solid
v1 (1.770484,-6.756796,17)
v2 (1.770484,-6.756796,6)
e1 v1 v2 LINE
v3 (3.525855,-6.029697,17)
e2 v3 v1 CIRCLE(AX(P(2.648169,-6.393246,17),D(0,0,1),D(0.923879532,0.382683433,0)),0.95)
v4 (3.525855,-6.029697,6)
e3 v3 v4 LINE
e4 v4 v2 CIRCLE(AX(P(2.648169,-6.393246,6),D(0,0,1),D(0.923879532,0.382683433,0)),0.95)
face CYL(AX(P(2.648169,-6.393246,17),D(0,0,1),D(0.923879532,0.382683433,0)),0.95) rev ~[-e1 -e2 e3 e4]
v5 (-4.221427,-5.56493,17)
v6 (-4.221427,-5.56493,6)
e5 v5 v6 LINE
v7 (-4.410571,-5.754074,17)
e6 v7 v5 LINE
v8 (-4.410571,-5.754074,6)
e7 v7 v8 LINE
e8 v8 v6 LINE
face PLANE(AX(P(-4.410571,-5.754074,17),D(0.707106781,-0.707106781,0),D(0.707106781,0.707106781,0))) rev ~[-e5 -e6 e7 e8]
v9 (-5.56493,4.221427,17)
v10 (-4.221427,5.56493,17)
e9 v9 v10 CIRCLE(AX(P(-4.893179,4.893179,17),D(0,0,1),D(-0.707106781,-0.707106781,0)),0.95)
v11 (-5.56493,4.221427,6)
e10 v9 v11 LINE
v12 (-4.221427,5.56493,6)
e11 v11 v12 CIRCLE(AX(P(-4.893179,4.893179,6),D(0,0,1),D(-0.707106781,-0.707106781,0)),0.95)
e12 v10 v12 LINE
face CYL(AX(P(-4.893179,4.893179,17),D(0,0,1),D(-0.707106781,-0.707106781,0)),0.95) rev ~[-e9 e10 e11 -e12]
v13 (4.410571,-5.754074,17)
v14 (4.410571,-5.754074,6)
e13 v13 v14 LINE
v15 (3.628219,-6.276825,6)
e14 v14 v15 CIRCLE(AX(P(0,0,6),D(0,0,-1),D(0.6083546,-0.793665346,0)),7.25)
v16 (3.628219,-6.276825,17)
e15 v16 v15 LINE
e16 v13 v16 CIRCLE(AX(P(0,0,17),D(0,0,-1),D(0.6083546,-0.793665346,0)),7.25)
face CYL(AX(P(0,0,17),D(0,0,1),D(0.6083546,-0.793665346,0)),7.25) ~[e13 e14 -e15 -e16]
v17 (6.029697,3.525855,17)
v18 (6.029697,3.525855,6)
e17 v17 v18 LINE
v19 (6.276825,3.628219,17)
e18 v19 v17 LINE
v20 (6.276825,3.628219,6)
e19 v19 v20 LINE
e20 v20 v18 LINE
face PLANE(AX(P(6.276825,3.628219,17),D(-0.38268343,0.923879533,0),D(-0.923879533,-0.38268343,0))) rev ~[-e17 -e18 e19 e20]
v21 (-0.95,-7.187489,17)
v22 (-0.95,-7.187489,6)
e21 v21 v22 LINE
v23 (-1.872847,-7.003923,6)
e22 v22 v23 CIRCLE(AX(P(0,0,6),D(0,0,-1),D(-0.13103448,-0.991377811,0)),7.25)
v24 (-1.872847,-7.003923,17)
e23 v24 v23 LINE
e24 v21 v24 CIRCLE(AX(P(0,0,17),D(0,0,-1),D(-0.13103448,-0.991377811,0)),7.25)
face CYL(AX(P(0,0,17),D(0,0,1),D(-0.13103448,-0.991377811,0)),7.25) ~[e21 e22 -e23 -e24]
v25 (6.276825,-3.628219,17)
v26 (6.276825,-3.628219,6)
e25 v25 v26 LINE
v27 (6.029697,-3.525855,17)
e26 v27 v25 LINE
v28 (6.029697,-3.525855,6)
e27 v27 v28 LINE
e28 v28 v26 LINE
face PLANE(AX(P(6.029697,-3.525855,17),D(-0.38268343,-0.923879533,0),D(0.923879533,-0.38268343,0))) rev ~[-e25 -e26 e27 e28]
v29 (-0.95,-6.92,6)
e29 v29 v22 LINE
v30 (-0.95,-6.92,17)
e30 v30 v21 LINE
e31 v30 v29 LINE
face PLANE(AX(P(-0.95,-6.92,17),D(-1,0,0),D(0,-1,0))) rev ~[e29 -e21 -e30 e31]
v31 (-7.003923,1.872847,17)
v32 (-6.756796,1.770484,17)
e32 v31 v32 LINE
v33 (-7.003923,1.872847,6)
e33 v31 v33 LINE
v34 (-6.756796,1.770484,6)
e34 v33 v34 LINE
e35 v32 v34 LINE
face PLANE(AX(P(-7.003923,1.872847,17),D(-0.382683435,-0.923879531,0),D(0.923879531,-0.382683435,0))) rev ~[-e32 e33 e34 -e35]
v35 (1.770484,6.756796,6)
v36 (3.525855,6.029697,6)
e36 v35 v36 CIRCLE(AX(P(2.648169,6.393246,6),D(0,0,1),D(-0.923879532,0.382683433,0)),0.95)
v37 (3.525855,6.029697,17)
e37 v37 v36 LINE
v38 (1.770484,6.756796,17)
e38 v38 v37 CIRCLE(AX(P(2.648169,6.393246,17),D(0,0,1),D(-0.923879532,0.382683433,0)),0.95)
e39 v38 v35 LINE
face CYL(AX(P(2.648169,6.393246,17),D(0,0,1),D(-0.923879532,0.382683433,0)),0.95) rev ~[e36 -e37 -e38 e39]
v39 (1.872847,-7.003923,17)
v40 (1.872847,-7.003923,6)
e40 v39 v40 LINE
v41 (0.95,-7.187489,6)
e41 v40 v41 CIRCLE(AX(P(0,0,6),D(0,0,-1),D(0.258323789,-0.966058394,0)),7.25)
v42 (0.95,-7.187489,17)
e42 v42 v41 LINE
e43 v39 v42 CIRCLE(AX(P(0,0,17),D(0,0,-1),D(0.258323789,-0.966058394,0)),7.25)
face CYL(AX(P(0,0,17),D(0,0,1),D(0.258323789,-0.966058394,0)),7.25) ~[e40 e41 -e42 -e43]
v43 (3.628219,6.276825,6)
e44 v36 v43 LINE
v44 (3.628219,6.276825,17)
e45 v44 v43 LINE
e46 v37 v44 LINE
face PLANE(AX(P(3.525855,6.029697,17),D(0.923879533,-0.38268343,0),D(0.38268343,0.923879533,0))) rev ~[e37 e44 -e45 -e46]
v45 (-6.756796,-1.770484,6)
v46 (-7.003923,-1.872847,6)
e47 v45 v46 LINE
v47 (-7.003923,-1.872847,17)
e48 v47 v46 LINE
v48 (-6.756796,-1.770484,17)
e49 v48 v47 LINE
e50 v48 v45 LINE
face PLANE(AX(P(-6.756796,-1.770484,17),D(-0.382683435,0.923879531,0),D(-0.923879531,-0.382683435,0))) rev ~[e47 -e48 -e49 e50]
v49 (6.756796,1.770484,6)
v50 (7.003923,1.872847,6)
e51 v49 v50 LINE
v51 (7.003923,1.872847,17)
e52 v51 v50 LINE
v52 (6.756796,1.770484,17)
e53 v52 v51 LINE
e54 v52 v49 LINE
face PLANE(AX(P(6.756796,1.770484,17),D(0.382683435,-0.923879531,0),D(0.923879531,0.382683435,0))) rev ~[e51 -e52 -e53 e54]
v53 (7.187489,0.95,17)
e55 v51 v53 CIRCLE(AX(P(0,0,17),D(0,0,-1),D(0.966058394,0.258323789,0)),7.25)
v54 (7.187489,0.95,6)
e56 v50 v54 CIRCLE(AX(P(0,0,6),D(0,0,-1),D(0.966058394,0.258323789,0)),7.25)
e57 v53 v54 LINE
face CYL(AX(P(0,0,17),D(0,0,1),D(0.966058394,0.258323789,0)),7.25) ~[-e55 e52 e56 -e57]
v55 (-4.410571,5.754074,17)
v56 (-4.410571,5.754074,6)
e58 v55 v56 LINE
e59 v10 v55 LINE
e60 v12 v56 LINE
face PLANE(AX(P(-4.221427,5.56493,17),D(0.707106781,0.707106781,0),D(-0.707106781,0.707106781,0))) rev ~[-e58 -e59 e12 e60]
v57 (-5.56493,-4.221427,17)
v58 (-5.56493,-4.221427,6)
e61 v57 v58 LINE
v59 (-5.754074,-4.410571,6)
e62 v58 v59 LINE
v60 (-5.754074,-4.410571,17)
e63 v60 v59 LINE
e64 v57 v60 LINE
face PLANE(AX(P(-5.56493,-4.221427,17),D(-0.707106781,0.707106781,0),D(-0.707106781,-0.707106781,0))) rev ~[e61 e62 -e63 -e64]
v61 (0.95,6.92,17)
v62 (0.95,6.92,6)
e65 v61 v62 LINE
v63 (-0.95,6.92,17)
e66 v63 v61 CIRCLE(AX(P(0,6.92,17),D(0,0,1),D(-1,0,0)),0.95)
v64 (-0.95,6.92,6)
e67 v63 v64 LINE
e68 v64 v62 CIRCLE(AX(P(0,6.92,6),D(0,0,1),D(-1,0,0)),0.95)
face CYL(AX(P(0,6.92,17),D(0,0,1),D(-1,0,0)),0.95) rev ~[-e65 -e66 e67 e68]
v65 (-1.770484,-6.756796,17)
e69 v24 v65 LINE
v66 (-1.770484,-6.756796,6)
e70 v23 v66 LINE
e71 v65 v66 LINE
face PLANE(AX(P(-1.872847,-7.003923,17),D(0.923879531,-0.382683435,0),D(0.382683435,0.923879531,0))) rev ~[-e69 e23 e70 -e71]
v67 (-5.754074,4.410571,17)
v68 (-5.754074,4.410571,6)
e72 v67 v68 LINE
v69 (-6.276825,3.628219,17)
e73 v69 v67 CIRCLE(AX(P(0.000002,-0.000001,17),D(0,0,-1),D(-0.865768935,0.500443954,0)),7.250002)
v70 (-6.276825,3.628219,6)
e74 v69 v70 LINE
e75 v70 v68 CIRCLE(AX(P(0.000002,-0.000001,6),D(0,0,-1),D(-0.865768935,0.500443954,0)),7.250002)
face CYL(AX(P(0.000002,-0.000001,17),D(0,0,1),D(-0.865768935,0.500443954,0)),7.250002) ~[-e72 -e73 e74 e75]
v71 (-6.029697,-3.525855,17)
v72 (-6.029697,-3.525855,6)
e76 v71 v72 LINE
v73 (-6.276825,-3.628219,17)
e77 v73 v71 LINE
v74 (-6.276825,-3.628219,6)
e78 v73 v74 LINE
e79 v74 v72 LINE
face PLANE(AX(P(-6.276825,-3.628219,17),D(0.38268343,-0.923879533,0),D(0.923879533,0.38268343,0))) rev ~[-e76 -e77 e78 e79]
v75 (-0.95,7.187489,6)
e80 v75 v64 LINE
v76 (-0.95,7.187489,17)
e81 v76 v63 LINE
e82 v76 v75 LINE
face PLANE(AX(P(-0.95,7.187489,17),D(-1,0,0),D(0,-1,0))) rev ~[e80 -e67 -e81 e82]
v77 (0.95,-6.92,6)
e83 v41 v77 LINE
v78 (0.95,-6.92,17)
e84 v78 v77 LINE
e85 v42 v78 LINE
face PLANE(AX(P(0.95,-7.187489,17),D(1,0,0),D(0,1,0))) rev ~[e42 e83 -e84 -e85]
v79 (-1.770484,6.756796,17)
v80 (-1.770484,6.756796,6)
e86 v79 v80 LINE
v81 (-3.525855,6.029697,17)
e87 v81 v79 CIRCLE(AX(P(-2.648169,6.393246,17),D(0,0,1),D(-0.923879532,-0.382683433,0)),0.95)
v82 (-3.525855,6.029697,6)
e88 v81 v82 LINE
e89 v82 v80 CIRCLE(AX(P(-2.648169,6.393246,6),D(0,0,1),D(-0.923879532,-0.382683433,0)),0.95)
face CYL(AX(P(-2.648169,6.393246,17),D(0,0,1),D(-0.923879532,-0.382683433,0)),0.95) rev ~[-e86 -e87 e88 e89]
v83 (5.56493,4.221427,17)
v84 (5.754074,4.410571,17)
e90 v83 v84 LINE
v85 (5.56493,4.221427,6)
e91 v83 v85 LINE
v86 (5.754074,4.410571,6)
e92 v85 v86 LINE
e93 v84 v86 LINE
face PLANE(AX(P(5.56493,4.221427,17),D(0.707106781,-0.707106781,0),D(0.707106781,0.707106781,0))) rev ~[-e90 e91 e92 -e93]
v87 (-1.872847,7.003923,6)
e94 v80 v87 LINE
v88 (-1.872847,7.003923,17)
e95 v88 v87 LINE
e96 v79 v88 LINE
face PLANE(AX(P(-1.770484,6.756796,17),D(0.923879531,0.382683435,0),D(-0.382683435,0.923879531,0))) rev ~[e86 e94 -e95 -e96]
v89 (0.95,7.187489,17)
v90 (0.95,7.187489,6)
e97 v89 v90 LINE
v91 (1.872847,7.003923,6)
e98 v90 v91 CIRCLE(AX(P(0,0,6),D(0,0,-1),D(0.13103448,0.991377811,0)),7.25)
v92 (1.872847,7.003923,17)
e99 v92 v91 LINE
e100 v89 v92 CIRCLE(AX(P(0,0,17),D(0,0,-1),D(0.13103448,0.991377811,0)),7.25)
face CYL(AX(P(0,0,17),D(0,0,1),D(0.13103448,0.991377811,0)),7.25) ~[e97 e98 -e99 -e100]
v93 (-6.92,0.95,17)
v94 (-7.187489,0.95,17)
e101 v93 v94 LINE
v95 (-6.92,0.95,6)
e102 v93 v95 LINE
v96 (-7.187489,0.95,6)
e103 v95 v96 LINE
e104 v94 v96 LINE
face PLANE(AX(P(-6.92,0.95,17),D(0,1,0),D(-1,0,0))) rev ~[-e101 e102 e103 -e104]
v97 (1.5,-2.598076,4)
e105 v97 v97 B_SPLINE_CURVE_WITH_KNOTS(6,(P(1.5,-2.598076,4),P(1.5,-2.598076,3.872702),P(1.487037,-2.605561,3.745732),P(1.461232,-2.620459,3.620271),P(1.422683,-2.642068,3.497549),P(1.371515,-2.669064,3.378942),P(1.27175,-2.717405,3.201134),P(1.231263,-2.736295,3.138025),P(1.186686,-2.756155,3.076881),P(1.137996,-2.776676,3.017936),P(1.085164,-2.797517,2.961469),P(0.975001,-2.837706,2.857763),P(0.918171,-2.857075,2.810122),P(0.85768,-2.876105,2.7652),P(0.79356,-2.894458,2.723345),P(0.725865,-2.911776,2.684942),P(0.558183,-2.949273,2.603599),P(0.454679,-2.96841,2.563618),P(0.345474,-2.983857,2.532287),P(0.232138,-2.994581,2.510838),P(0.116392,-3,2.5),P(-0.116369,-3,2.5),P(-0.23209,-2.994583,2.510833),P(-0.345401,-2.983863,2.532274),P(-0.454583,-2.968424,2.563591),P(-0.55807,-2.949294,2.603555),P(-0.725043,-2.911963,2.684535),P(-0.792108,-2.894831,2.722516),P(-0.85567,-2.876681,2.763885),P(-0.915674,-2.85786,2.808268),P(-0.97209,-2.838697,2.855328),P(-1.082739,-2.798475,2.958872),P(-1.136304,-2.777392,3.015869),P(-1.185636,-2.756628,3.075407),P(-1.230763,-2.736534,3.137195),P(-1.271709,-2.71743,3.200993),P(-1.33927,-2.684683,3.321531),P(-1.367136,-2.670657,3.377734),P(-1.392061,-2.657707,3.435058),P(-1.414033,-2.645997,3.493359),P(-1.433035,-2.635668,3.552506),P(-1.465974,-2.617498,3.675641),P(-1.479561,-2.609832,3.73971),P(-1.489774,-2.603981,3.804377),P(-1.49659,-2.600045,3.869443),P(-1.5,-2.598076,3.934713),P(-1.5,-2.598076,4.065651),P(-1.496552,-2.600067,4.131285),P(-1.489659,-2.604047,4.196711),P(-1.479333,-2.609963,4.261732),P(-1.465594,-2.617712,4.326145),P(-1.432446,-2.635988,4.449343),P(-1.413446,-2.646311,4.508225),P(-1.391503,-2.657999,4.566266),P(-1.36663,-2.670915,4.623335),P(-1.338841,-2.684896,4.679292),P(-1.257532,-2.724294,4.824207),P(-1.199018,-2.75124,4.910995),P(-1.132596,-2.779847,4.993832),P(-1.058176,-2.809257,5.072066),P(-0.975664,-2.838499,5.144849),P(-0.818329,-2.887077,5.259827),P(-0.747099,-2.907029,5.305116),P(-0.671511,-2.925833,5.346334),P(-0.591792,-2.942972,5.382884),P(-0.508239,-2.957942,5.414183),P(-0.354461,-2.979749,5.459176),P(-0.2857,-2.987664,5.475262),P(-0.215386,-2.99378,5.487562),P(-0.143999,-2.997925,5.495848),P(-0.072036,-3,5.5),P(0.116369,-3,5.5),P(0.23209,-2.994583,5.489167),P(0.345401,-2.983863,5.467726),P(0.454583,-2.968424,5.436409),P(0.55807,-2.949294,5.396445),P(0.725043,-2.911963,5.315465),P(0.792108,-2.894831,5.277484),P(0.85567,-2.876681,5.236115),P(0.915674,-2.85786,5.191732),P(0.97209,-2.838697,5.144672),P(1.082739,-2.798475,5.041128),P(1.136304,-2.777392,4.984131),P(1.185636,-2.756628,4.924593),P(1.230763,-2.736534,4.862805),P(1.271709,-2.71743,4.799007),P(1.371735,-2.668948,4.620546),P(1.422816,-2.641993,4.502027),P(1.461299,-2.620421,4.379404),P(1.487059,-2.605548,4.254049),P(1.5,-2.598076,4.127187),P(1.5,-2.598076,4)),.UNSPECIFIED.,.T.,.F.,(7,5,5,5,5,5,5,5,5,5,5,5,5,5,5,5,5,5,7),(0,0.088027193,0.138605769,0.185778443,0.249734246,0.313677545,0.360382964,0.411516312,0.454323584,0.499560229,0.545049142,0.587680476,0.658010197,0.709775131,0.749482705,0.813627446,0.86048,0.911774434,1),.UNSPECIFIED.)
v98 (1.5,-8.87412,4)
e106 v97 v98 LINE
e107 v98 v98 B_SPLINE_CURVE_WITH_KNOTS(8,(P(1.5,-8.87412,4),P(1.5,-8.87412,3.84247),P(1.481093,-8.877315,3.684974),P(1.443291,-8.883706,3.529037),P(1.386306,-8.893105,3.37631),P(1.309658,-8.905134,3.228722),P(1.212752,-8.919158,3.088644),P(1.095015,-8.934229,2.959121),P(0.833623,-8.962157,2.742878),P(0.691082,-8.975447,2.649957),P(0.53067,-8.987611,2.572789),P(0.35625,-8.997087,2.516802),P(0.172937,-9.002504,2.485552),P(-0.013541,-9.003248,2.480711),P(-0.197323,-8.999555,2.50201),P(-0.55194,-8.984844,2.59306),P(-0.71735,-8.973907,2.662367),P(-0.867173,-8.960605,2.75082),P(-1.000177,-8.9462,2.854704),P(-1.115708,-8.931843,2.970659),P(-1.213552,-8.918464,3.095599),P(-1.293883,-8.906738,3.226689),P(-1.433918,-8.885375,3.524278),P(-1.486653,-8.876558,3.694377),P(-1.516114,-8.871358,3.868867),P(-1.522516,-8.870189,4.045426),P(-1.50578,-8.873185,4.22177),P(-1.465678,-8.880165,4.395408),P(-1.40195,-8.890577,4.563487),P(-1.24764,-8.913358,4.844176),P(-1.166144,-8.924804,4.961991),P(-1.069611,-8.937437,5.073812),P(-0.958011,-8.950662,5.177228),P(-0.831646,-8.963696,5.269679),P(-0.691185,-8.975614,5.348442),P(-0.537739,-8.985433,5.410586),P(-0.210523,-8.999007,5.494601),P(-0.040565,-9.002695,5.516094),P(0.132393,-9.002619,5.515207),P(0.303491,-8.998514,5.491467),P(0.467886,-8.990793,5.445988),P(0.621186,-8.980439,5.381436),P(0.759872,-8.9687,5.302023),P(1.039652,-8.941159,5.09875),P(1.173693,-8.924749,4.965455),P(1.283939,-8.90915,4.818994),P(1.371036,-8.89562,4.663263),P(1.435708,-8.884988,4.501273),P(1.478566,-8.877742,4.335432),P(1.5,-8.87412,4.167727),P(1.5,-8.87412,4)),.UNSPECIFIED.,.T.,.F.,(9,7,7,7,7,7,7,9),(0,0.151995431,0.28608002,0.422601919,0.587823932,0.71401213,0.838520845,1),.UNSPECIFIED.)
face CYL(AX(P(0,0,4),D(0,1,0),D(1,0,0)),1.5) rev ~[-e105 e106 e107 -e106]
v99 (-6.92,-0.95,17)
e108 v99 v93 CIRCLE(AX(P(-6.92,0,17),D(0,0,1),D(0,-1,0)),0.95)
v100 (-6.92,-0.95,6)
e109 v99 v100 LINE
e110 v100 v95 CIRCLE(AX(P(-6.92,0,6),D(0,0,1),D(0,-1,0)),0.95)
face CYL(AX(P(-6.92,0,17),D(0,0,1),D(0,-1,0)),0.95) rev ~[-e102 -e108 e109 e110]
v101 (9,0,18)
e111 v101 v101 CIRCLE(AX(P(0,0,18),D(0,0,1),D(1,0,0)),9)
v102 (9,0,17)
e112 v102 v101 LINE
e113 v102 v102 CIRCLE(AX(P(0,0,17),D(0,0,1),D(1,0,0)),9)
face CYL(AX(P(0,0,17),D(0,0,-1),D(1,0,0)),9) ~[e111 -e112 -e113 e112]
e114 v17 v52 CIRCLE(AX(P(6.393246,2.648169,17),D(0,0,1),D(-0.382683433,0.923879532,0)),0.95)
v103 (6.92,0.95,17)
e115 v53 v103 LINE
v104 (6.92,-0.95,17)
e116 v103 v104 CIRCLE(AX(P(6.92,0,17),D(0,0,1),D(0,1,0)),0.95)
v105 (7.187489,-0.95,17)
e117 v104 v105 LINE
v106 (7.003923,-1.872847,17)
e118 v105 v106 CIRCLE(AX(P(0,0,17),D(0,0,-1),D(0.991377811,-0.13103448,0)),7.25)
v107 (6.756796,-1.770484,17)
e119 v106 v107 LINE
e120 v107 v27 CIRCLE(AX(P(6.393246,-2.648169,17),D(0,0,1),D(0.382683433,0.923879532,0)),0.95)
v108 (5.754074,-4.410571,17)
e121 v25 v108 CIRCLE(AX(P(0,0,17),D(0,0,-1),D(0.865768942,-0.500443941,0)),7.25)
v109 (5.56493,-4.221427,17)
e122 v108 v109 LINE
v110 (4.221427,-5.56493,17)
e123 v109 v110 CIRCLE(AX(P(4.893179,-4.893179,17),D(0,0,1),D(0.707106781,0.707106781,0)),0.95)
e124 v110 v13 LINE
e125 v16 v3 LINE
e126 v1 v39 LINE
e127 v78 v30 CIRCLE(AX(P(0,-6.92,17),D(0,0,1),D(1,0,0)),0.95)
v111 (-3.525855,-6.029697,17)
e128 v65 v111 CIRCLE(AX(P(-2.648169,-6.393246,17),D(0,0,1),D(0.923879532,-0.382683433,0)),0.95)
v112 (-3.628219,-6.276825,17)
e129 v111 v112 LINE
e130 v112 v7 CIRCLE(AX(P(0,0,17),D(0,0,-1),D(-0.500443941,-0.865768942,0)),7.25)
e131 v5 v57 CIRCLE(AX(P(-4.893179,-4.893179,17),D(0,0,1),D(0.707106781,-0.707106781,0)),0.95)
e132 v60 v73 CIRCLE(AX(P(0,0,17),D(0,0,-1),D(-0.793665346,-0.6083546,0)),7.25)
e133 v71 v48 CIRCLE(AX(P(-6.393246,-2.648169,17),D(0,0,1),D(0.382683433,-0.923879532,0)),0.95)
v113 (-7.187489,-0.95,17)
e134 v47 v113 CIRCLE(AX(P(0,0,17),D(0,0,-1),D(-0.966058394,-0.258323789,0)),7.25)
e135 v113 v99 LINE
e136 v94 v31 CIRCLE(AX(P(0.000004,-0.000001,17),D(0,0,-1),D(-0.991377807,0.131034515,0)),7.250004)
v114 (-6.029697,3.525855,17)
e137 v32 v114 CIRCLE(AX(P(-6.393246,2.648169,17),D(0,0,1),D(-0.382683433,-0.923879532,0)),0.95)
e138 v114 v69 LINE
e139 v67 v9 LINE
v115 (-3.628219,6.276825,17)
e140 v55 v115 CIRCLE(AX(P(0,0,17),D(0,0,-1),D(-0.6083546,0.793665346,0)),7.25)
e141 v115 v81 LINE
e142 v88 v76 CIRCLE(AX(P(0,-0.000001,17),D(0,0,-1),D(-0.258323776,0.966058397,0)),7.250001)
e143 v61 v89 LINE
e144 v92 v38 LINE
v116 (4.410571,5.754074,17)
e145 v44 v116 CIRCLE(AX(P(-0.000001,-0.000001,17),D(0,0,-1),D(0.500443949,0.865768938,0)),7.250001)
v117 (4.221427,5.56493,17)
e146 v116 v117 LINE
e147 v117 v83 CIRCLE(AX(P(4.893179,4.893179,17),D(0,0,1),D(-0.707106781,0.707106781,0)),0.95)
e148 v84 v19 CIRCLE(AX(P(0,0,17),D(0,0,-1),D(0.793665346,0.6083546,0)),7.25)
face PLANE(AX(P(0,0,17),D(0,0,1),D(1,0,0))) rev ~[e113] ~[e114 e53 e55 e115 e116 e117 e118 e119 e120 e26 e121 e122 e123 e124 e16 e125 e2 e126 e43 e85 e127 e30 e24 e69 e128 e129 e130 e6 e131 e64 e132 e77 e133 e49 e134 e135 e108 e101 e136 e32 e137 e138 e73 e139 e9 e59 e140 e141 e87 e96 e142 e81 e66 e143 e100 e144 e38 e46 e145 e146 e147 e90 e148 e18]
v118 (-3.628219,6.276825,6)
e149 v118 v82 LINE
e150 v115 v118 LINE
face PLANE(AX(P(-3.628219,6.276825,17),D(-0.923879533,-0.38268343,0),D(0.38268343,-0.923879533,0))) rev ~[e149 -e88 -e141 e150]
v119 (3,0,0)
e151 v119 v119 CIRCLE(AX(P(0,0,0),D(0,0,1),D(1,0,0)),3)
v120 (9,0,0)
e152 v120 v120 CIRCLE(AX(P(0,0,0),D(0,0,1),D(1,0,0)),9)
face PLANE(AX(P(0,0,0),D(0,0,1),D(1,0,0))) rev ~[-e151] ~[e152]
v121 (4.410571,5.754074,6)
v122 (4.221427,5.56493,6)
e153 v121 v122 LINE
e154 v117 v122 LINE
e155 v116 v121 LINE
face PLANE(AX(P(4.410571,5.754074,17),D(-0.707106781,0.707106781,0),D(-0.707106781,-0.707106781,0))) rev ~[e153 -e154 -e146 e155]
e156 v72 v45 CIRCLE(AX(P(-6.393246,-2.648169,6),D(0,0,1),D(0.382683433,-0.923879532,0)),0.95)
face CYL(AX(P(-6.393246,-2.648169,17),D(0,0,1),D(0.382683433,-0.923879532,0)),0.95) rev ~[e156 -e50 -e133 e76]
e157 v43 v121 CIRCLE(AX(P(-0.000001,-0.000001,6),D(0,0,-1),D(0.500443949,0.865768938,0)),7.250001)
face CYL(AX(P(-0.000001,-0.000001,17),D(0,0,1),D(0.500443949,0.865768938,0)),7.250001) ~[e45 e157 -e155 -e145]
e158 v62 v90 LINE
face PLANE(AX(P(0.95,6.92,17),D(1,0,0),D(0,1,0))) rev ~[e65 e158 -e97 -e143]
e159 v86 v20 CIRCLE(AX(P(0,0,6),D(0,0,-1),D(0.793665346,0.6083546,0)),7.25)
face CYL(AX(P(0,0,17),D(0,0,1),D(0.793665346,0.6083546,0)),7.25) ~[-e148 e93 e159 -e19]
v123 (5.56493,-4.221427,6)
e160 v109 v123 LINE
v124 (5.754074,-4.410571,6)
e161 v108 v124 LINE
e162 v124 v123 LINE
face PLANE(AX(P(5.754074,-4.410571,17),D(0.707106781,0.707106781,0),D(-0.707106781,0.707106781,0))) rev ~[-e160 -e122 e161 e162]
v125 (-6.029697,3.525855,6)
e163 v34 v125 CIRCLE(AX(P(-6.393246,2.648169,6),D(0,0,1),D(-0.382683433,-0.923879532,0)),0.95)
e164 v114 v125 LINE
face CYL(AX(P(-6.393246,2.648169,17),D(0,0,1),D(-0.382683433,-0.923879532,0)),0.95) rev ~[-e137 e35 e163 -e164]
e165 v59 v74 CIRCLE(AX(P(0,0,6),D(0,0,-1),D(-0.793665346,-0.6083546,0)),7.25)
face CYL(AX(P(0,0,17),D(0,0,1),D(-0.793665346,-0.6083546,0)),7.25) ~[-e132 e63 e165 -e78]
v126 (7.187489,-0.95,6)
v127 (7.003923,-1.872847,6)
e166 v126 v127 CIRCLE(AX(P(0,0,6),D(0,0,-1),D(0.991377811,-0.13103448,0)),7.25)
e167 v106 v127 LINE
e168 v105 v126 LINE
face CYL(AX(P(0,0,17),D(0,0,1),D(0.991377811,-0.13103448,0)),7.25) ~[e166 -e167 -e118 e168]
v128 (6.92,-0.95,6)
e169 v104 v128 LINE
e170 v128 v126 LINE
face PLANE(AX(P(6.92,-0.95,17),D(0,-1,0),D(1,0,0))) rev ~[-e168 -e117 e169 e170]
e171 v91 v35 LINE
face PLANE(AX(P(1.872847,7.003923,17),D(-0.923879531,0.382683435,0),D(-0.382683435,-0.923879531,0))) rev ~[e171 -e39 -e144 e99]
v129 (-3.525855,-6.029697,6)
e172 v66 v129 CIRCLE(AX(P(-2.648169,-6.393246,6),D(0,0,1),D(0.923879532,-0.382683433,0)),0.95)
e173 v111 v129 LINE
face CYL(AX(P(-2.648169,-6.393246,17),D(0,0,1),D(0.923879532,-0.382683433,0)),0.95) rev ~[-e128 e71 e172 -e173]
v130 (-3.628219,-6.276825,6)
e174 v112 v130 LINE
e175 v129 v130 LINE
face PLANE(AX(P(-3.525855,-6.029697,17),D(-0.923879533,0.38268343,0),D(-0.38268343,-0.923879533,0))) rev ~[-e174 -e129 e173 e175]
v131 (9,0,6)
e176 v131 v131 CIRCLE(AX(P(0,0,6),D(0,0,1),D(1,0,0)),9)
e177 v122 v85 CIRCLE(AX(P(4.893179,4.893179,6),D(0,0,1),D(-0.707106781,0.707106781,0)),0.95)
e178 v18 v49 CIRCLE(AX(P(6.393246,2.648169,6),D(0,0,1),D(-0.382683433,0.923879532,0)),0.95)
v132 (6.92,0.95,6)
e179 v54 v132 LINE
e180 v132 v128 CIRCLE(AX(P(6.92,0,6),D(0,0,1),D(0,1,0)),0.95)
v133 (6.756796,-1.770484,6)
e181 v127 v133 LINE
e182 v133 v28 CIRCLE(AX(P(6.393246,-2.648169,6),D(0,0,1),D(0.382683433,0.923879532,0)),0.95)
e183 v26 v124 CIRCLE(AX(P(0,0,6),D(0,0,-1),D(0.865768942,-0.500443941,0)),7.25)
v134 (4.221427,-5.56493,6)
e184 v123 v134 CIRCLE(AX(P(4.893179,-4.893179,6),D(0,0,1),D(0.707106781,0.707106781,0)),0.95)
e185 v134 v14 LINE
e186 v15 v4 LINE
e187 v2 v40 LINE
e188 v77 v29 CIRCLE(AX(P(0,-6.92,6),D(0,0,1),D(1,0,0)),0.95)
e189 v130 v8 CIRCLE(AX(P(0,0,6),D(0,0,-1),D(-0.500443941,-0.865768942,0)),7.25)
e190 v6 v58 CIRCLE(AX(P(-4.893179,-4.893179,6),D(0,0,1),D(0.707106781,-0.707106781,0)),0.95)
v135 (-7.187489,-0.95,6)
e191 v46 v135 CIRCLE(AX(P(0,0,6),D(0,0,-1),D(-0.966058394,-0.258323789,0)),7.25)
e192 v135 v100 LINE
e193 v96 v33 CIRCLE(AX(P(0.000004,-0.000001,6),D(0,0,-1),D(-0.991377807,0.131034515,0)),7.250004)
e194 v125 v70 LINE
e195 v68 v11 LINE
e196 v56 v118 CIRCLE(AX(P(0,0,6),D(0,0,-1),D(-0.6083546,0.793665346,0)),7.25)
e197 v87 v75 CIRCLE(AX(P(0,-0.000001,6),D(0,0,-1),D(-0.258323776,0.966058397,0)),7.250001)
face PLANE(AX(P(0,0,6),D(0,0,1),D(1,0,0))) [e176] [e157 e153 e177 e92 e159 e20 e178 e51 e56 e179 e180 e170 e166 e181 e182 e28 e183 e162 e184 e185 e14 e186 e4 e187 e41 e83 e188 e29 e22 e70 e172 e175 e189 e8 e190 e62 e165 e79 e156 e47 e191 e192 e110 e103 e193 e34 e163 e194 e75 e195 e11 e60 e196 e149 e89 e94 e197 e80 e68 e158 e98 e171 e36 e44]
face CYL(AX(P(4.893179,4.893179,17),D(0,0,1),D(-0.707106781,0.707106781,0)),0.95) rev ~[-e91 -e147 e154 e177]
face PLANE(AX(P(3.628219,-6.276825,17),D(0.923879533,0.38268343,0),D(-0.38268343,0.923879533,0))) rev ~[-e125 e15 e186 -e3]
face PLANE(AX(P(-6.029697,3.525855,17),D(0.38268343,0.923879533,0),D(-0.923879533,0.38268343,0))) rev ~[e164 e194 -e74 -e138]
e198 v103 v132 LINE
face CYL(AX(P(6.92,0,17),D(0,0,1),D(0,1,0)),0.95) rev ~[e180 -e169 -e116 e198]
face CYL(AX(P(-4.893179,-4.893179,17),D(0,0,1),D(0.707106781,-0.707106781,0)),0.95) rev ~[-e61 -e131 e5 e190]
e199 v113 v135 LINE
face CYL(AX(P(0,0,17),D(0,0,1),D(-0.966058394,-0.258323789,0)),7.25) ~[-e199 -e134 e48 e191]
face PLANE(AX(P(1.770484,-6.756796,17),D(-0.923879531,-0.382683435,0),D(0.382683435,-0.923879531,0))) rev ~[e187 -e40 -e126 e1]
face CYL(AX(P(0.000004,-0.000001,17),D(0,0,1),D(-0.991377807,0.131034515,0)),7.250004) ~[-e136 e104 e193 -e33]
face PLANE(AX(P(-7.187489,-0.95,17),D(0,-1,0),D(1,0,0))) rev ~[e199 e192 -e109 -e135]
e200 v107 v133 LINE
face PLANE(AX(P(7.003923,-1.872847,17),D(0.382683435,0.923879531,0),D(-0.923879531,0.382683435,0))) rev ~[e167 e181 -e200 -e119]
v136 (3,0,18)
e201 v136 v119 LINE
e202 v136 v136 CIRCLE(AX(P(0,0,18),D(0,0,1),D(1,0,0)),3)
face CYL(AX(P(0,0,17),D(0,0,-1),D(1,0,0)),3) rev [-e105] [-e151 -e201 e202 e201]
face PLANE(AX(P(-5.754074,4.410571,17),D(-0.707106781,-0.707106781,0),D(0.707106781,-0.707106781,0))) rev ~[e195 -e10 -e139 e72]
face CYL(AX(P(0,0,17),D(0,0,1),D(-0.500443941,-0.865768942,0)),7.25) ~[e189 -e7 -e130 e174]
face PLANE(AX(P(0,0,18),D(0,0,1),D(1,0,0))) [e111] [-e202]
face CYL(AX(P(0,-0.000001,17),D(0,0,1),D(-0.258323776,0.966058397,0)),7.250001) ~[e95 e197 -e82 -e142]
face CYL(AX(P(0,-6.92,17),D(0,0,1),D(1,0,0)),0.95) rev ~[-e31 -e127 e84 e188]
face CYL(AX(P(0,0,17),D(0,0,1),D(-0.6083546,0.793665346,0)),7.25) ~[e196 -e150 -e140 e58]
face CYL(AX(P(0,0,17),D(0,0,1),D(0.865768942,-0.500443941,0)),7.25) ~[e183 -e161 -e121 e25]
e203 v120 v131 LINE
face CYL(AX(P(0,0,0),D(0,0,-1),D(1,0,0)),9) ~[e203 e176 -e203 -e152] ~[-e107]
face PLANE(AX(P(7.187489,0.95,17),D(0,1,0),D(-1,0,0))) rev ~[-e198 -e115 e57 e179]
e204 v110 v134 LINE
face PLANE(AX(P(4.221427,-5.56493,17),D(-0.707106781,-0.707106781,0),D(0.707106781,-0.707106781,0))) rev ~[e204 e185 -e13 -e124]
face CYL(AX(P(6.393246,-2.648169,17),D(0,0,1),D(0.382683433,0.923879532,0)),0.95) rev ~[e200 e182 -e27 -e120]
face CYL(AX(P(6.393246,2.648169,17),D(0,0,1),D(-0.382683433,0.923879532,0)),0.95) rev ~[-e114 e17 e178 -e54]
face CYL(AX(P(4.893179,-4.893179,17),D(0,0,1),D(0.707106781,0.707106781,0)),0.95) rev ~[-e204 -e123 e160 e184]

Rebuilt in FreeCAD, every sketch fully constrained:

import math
import FreeCAD as App
import Part
import Sketcher

V = App.Vector
Q = App.Units.Quantity

doc = App.newDocument("Part")
body = doc.addObject("PartDesign::Body", "Body")

sketch1 = doc.addObject("Sketcher::SketchObject", "Sketch")
body.addObject(sketch1)
sketch1.AttachmentSupport = (doc.XY_Plane, [""])
sketch1.MapMode = "FlatFace"
sketch1.addGeometry(Part.Circle(V(0, 0, 0), V(0, 0, 1), 9), False)
sketch1.addGeometry(Part.Circle(V(0, 0, 0), V(0, 0, 1), 3), False)
sketch1.addConstraint(Sketcher.Constraint("Coincident", 0, 3, -1, 1))
sketch1.addConstraint(Sketcher.Constraint("Coincident", 1, 3, -1, 1))
sketch1.addConstraint(Sketcher.Constraint("Diameter", 0, 18.0))
sketch1.addConstraint(Sketcher.Constraint("Diameter", 1, 6.0))
pad1 = doc.addObject("PartDesign::Pad", "Pad")
body.addObject(pad1)
pad1.Profile = sketch1
pad1.Length = 6

sketch2 = doc.addObject("Sketcher::SketchObject", "Sketch001")
body.addObject(sketch2)
sketch2.AttachmentSupport = (doc.XY_Plane, [""])
sketch2.MapMode = "FlatFace"
sketch2.AttachmentOffset = App.Placement(V(0, 0, 6), App.Rotation())
sketch2.addGeometry(Part.Circle(V(0, 0, 0), V(0, 0, 1), 7.2), False)
sketch2.addGeometry(Part.Circle(V(0, 0, 0), V(0, 0, 1), 3), False)
sketch2.addConstraint(Sketcher.Constraint("Coincident", 0, 3, -1, 1))
sketch2.addConstraint(Sketcher.Constraint("Coincident", 1, 3, -1, 1))
sketch2.addConstraint(Sketcher.Constraint("Diameter", 1, 6.0))
sketch2.addConstraint(Sketcher.Constraint("Diameter", 0, 14.5))
pad2 = doc.addObject("PartDesign::Pad", "Pad001")
body.addObject(pad2)
pad2.Profile = sketch2
pad2.Length = 11

sketch3 = doc.addObject("Sketcher::SketchObject", "Sketch002")
body.addObject(sketch3)
sketch3.AttachmentSupport = (doc.XY_Plane, [""])
sketch3.MapMode = "FlatFace"
sketch3.AttachmentOffset = App.Placement(V(0, 0, 17), App.Rotation())
sketch3.addGeometry(Part.Circle(V(0, 0, 0), V(0, 0, 1), 9), False)
sketch3.addGeometry(Part.Circle(V(0, 0, 0), V(0, 0, 1), 3), False)
sketch3.addConstraint(Sketcher.Constraint("Coincident", 0, 3, -1, 1))
sketch3.addConstraint(Sketcher.Constraint("Coincident", 1, 3, -1, 1))
sketch3.addConstraint(Sketcher.Constraint("Diameter", 0, 18.0))
sketch3.addConstraint(Sketcher.Constraint("Diameter", 1, 6.0))
pad3 = doc.addObject("PartDesign::Pad", "Pad002")
body.addObject(pad3)
pad3.Profile = sketch3
pad3.Length = 1

sketch4 = doc.addObject("Sketcher::SketchObject", "Sketch003")
body.addObject(sketch4)
sketch4.AttachmentSupport = (doc.XZ_Plane, [""])
sketch4.MapMode = "FlatFace"
sketch4.addGeometry(Part.Circle(V(0, 4, 0), V(0, 0, 1), 1.5), False)
sketch4.addConstraint(Sketcher.Constraint("PointOnObject", 0, 3, -2))
sketch4.addConstraint(Sketcher.Constraint("Diameter", 0, 3.0))
sketch4.addConstraint(Sketcher.Constraint("DistanceY", -1, 1, 0, 3, 4.0))
pocket1 = doc.addObject("PartDesign::Pocket", "Pocket")
body.addObject(pocket1)
pocket1.Profile = sketch4
pocket1.Type = "ThroughAll"
pocket1.Reversed = True

sketch5 = doc.addObject("Sketcher::SketchObject", "Sketch004")
body.addObject(sketch5)
sketch5.AttachmentSupport = (doc.XY_Plane, [""])
sketch5.MapMode = "FlatFace"
sketch5.AttachmentOffset = App.Placement(V(0, 0, 17), App.Rotation())
sketch5.addGeometry(Part.Circle(V(0, 0, 0), V(0, 0, 1), 9), False)
sketch5.addGeometry(Part.ArcOfCircle(Part.Circle(V(0, 0, 0), V(0, 0, 1), 7.25), math.radians(97.53), math.radians(104.97)), False)
sketch5.addGeometry(Part.LineSegment(V(-0.95, 7.19, 0), V(-0.95, 6.92, 0)), False)
sketch5.addGeometry(Part.ArcOfCircle(Part.Circle(V(0, 6.92, 0), V(0, 0, 1), 0.95), math.radians(180), math.radians(360)), False)
sketch5.addGeometry(Part.LineSegment(V(0.95, 6.92, 0), V(0.95, 7.19, 0)), False)
sketch5.addGeometry(Part.ArcOfCircle(Part.Circle(V(0, 0, 0), V(0, 0, 1), 7.25), math.radians(75.03), math.radians(82.47)), False)
sketch5.addGeometry(Part.LineSegment(V(1.87, 7, 0), V(1.77, 6.76, 0)), False)
sketch5.addGeometry(Part.ArcOfCircle(Part.Circle(V(2.65, 6.39, 0), V(0, 0, 1), 0.95), math.radians(157), math.radians(337)), False)
sketch5.addGeometry(Part.LineSegment(V(3.53, 6.03, 0), V(3.63, 6.28, 0)), False)
sketch5.addGeometry(Part.ArcOfCircle(Part.Circle(V(0, 0, 0), V(0, 0, 1), 7.25), math.radians(52.53), math.radians(59.97)), False)
sketch5.addGeometry(Part.LineSegment(V(4.41, 5.75, 0), V(4.22, 5.56, 0)), False)
sketch5.addGeometry(Part.ArcOfCircle(Part.Circle(V(4.89, 4.89, 0), V(0, 0, 1), 0.95), math.radians(135), math.radians(315)), False)
sketch5.addGeometry(Part.LineSegment(V(5.56, 4.22, 0), V(5.75, 4.41, 0)), False)
sketch5.addGeometry(Part.ArcOfCircle(Part.Circle(V(0, 0, 0), V(0, 0, 1), 7.25), math.radians(30.03), math.radians(37.47)), False)
sketch5.addGeometry(Part.LineSegment(V(6.28, 3.63, 0), V(6.03, 3.53, 0)), False)
sketch5.addGeometry(Part.ArcOfCircle(Part.Circle(V(6.39, 2.65, 0), V(0, 0, 1), 0.95), math.radians(113), math.radians(293)), False)
sketch5.addGeometry(Part.LineSegment(V(6.76, 1.77, 0), V(7, 1.87, 0)), False)
sketch5.addGeometry(Part.ArcOfCircle(Part.Circle(V(0, 0, 0), V(0, 0, 1), 7.25), math.radians(7.53), math.radians(14.97)), False)
sketch5.addGeometry(Part.LineSegment(V(7.19, 0.95, 0), V(6.92, 0.95, 0)), False)
sketch5.addGeometry(Part.ArcOfCircle(Part.Circle(V(6.92, 0, 0), V(0, 0, 1), 0.95), math.radians(90), math.radians(270)), False)
sketch5.addGeometry(Part.LineSegment(V(6.92, -0.95, 0), V(7.19, -0.95, 0)), False)
sketch5.addGeometry(Part.ArcOfCircle(Part.Circle(V(0, 0, 0), V(0, 0, 1), 7.25), math.radians(-14.97), math.radians(-7.53)), False)
sketch5.addGeometry(Part.LineSegment(V(7, -1.87, 0), V(6.76, -1.77, 0)), False)
sketch5.addGeometry(Part.ArcOfCircle(Part.Circle(V(6.39, -2.65, 0), V(0, 0, 1), 0.95), math.radians(67), math.radians(247)), False)
sketch5.addGeometry(Part.LineSegment(V(6.03, -3.53, 0), V(6.28, -3.63, 0)), False)
sketch5.addGeometry(Part.ArcOfCircle(Part.Circle(V(0, 0, 0), V(0, 0, 1), 7.25), math.radians(-37.47), math.radians(-30.03)), False)
sketch5.addGeometry(Part.LineSegment(V(5.75, -4.41, 0), V(5.56, -4.22, 0)), False)
sketch5.addGeometry(Part.ArcOfCircle(Part.Circle(V(4.89, -4.89, 0), V(0, 0, 1), 0.95), math.radians(45), math.radians(225)), False)
sketch5.addGeometry(Part.LineSegment(V(4.22, -5.56, 0), V(4.41, -5.75, 0)), False)
sketch5.addGeometry(Part.ArcOfCircle(Part.Circle(V(0, 0, 0), V(0, 0, 1), 7.25), math.radians(-59.97), math.radians(-52.53)), False)
sketch5.addGeometry(Part.LineSegment(V(3.63, -6.28, 0), V(3.53, -6.03, 0)), False)
sketch5.addGeometry(Part.ArcOfCircle(Part.Circle(V(2.65, -6.39, 0), V(0, 0, 1), 0.95), math.radians(23), math.radians(203)), False)
sketch5.addGeometry(Part.LineSegment(V(1.77, -6.76, 0), V(1.87, -7, 0)), False)
sketch5.addGeometry(Part.ArcOfCircle(Part.Circle(V(0, 0, 0), V(0, 0, 1), 7.25), math.radians(-82.47), math.radians(-75.03)), False)
sketch5.addGeometry(Part.LineSegment(V(0.95, -7.19, 0), V(0.95, -6.92, 0)), False)
sketch5.addGeometry(Part.ArcOfCircle(Part.Circle(V(0, -6.92, 0), V(0, 0, 1), 0.95), math.radians(0), math.radians(180)), False)
sketch5.addGeometry(Part.LineSegment(V(-0.95, -6.92, 0), V(-0.95, -7.19, 0)), False)
sketch5.addGeometry(Part.ArcOfCircle(Part.Circle(V(0, 0, 0), V(0, 0, 1), 7.25), math.radians(-104.97), math.radians(-97.53)), False)
sketch5.addGeometry(Part.LineSegment(V(-1.87, -7, 0), V(-1.77, -6.76, 0)), False)
sketch5.addGeometry(Part.ArcOfCircle(Part.Circle(V(-2.65, -6.39, 0), V(0, 0, 1), 0.95), math.radians(-23), math.radians(157)), False)
sketch5.addGeometry(Part.LineSegment(V(-3.53, -6.03, 0), V(-3.63, -6.28, 0)), False)
sketch5.addGeometry(Part.ArcOfCircle(Part.Circle(V(0, 0, 0), V(0, 0, 1), 7.25), math.radians(-127.47), math.radians(-120.03)), False)
sketch5.addGeometry(Part.LineSegment(V(-4.41, -5.75, 0), V(-4.22, -5.56, 0)), False)
sketch5.addGeometry(Part.ArcOfCircle(Part.Circle(V(-4.89, -4.89, 0), V(0, 0, 1), 0.95), math.radians(-45), math.radians(135)), False)
sketch5.addGeometry(Part.LineSegment(V(-5.56, -4.22, 0), V(-5.75, -4.41, 0)), False)
sketch5.addGeometry(Part.ArcOfCircle(Part.Circle(V(0, 0, 0), V(0, 0, 1), 7.25), math.radians(-149.97), math.radians(-142.53)), False)
sketch5.addGeometry(Part.LineSegment(V(-6.28, -3.63, 0), V(-6.03, -3.53, 0)), False)
sketch5.addGeometry(Part.ArcOfCircle(Part.Circle(V(-6.39, -2.65, 0), V(0, 0, 1), 0.95), math.radians(-67), math.radians(113)), False)
sketch5.addGeometry(Part.LineSegment(V(-6.76, -1.77, 0), V(-7, -1.87, 0)), False)
sketch5.addGeometry(Part.ArcOfCircle(Part.Circle(V(0, 0, 0), V(0, 0, 1), 7.25), math.radians(-172.47), math.radians(-165.03)), False)
sketch5.addGeometry(Part.LineSegment(V(-7.19, -0.95, 0), V(-6.92, -0.95, 0)), False)
sketch5.addGeometry(Part.ArcOfCircle(Part.Circle(V(-6.92, 0, 0), V(0, 0, 1), 0.95), math.radians(-90), math.radians(90)), False)
sketch5.addGeometry(Part.LineSegment(V(-6.92, 0.95, 0), V(-7.19, 0.95, 0)), False)
sketch5.addGeometry(Part.ArcOfCircle(Part.Circle(V(0, 0, 0), V(0, 0, 1), 7.25), math.radians(165.03), math.radians(172.47)), False)
sketch5.addGeometry(Part.LineSegment(V(-7, 1.87, 0), V(-6.76, 1.77, 0)), False)
sketch5.addGeometry(Part.ArcOfCircle(Part.Circle(V(-6.39, 2.65, 0), V(0, 0, 1), 0.95), math.radians(-113), math.radians(67)), False)
sketch5.addGeometry(Part.LineSegment(V(-6.03, 3.53, 0), V(-6.28, 3.63, 0)), False)
sketch5.addGeometry(Part.ArcOfCircle(Part.Circle(V(0, 0, 0), V(0, 0, 1), 7.25), math.radians(142.53), math.radians(149.97)), False)
sketch5.addGeometry(Part.LineSegment(V(-5.75, 4.41, 0), V(-5.56, 4.22, 0)), False)
sketch5.addGeometry(Part.ArcOfCircle(Part.Circle(V(-4.89, 4.89, 0), V(0, 0, 1), 0.95), math.radians(-135), math.radians(45)), False)
sketch5.addGeometry(Part.LineSegment(V(-4.22, 5.56, 0), V(-4.41, 5.75, 0)), False)
sketch5.addGeometry(Part.ArcOfCircle(Part.Circle(V(0, 0, 0), V(0, 0, 1), 7.25), math.radians(120.03), math.radians(127.47)), False)
sketch5.addGeometry(Part.LineSegment(V(-3.63, 6.28, 0), V(-3.53, 6.03, 0)), False)
sketch5.addGeometry(Part.ArcOfCircle(Part.Circle(V(-2.65, 6.39, 0), V(0, 0, 1), 0.95), math.radians(-157), math.radians(23)), False)
sketch5.addGeometry(Part.LineSegment(V(-1.77, 6.76, 0), V(-1.87, 7, 0)), False)
sketch5.addConstraint(Sketcher.Constraint("Coincident", 1, 1, 2, 1))
sketch5.addConstraint(Sketcher.Constraint("Tangent", 2, 2, 3, 1))
sketch5.addConstraint(Sketcher.Constraint("Tangent", 3, 2, 4, 1))
sketch5.addConstraint(Sketcher.Constraint("Coincident", 4, 2, 5, 2))
sketch5.addConstraint(Sketcher.Constraint("Coincident", 5, 1, 6, 1))
sketch5.addConstraint(Sketcher.Constraint("Tangent", 6, 2, 7, 1))
sketch5.addConstraint(Sketcher.Constraint("Tangent", 7, 2, 8, 1))
sketch5.addConstraint(Sketcher.Constraint("Coincident", 8, 2, 9, 2))
sketch5.addConstraint(Sketcher.Constraint("Coincident", 9, 1, 10, 1))
sketch5.addConstraint(Sketcher.Constraint("Tangent", 10, 2, 11, 1))
sketch5.addConstraint(Sketcher.Constraint("Tangent", 11, 2, 12, 1))
sketch5.addConstraint(Sketcher.Constraint("Coincident", 12, 2, 13, 2))
sketch5.addConstraint(Sketcher.Constraint("Coincident", 13, 1, 14, 1))
sketch5.addConstraint(Sketcher.Constraint("Tangent", 14, 2, 15, 1))
sketch5.addConstraint(Sketcher.Constraint("Tangent", 15, 2, 16, 1))
sketch5.addConstraint(Sketcher.Constraint("Coincident", 16, 2, 17, 2))
sketch5.addConstraint(Sketcher.Constraint("Coincident", 17, 1, 18, 1))
sketch5.addConstraint(Sketcher.Constraint("Tangent", 18, 2, 19, 1))
sketch5.addConstraint(Sketcher.Constraint("Tangent", 19, 2, 20, 1))
sketch5.addConstraint(Sketcher.Constraint("Coincident", 20, 2, 21, 2))
sketch5.addConstraint(Sketcher.Constraint("Coincident", 21, 1, 22, 1))
sketch5.addConstraint(Sketcher.Constraint("Tangent", 22, 2, 23, 1))
sketch5.addConstraint(Sketcher.Constraint("Tangent", 23, 2, 24, 1))
sketch5.addConstraint(Sketcher.Constraint("Coincident", 24, 2, 25, 2))
sketch5.addConstraint(Sketcher.Constraint("Coincident", 25, 1, 26, 1))
sketch5.addConstraint(Sketcher.Constraint("Tangent", 26, 2, 27, 1))
sketch5.addConstraint(Sketcher.Constraint("Tangent", 27, 2, 28, 1))
sketch5.addConstraint(Sketcher.Constraint("Coincident", 28, 2, 29, 2))
sketch5.addConstraint(Sketcher.Constraint("Coincident", 29, 1, 30, 1))
sketch5.addConstraint(Sketcher.Constraint("Tangent", 30, 2, 31, 1))
sketch5.addConstraint(Sketcher.Constraint("Tangent", 31, 2, 32, 1))
sketch5.addConstraint(Sketcher.Constraint("Coincident", 32, 2, 33, 2))
sketch5.addConstraint(Sketcher.Constraint("Coincident", 33, 1, 34, 1))
sketch5.addConstraint(Sketcher.Constraint("Tangent", 34, 2, 35, 1))
sketch5.addConstraint(Sketcher.Constraint("Tangent", 35, 2, 36, 1))
sketch5.addConstraint(Sketcher.Constraint("Coincident", 36, 2, 37, 2))
sketch5.addConstraint(Sketcher.Constraint("Coincident", 37, 1, 38, 1))
sketch5.addConstraint(Sketcher.Constraint("Tangent", 38, 2, 39, 1))
sketch5.addConstraint(Sketcher.Constraint("Tangent", 39, 2, 40, 1))
sketch5.addConstraint(Sketcher.Constraint("Coincident", 40, 2, 41, 2))
sketch5.addConstraint(Sketcher.Constraint("Coincident", 41, 1, 42, 1))
sketch5.addConstraint(Sketcher.Constraint("Tangent", 42, 2, 43, 1))
sketch5.addConstraint(Sketcher.Constraint("Tangent", 43, 2, 44, 1))
sketch5.addConstraint(Sketcher.Constraint("Coincident", 44, 2, 45, 2))
sketch5.addConstraint(Sketcher.Constraint("Coincident", 45, 1, 46, 1))
sketch5.addConstraint(Sketcher.Constraint("Tangent", 46, 2, 47, 1))
sketch5.addConstraint(Sketcher.Constraint("Tangent", 47, 2, 48, 1))
sketch5.addConstraint(Sketcher.Constraint("Coincident", 48, 2, 49, 2))
sketch5.addConstraint(Sketcher.Constraint("Coincident", 49, 1, 50, 1))
sketch5.addConstraint(Sketcher.Constraint("Tangent", 50, 2, 51, 1))
sketch5.addConstraint(Sketcher.Constraint("Tangent", 51, 2, 52, 1))
sketch5.addConstraint(Sketcher.Constraint("Coincident", 52, 2, 53, 2))
sketch5.addConstraint(Sketcher.Constraint("Coincident", 53, 1, 54, 1))
sketch5.addConstraint(Sketcher.Constraint("Tangent", 54, 2, 55, 1))
sketch5.addConstraint(Sketcher.Constraint("Tangent", 55, 2, 56, 1))
sketch5.addConstraint(Sketcher.Constraint("Coincident", 56, 2, 57, 2))
sketch5.addConstraint(Sketcher.Constraint("Coincident", 57, 1, 58, 1))
sketch5.addConstraint(Sketcher.Constraint("Tangent", 58, 2, 59, 1))
sketch5.addConstraint(Sketcher.Constraint("Tangent", 59, 2, 60, 1))
sketch5.addConstraint(Sketcher.Constraint("Coincident", 60, 2, 61, 2))
sketch5.addConstraint(Sketcher.Constraint("Coincident", 61, 1, 62, 1))
sketch5.addConstraint(Sketcher.Constraint("Tangent", 62, 2, 63, 1))
sketch5.addConstraint(Sketcher.Constraint("Tangent", 63, 2, 64, 1))
sketch5.addConstraint(Sketcher.Constraint("Coincident", 64, 2, 1, 2))
sketch5.addConstraint(Sketcher.Constraint("Vertical", 2))
sketch5.addConstraint(Sketcher.Constraint("Vertical", 4))
sketch5.addConstraint(Sketcher.Constraint("Horizontal", 18))
sketch5.addConstraint(Sketcher.Constraint("Horizontal", 20))
sketch5.addConstraint(Sketcher.Constraint("Vertical", 34))
sketch5.addConstraint(Sketcher.Constraint("Vertical", 36))
sketch5.addConstraint(Sketcher.Constraint("Horizontal", 50))
sketch5.addConstraint(Sketcher.Constraint("Horizontal", 52))
sketch5.addConstraint(Sketcher.Constraint("Coincident", 0, 3, -1, 1))
sketch5.addConstraint(Sketcher.Constraint("Coincident", 1, 3, -1, 1))
sketch5.addConstraint(Sketcher.Constraint("Coincident", 5, 3, -1, 1))
sketch5.addConstraint(Sketcher.Constraint("Coincident", 9, 3, -1, 1))
sketch5.addConstraint(Sketcher.Constraint("Coincident", 13, 3, -1, 1))
sketch5.addConstraint(Sketcher.Constraint("Coincident", 17, 3, -1, 1))
sketch5.addConstraint(Sketcher.Constraint("Coincident", 21, 3, -1, 1))
sketch5.addConstraint(Sketcher.Constraint("Coincident", 25, 3, -1, 1))
sketch5.addConstraint(Sketcher.Constraint("Coincident", 29, 3, -1, 1))
sketch5.addConstraint(Sketcher.Constraint("Coincident", 33, 3, -1, 1))
sketch5.addConstraint(Sketcher.Constraint("Coincident", 37, 3, -1, 1))
sketch5.addConstraint(Sketcher.Constraint("Coincident", 41, 3, -1, 1))
sketch5.addConstraint(Sketcher.Constraint("Coincident", 45, 3, -1, 1))
sketch5.addConstraint(Sketcher.Constraint("Coincident", 49, 3, -1, 1))
sketch5.addConstraint(Sketcher.Constraint("Coincident", 53, 3, -1, 1))
sketch5.addConstraint(Sketcher.Constraint("Coincident", 57, 3, -1, 1))
sketch5.addConstraint(Sketcher.Constraint("Coincident", 61, 3, -1, 1))
sketch5.addConstraint(Sketcher.Constraint("Equal", 1, 5))
sketch5.addConstraint(Sketcher.Constraint("Equal", 3, 7))
sketch5.addConstraint(Sketcher.Constraint("Equal", 5, 9))
sketch5.addConstraint(Sketcher.Constraint("Equal", 7, 11))
sketch5.addConstraint(Sketcher.Constraint("Equal", 9, 13))
sketch5.addConstraint(Sketcher.Constraint("Equal", 11, 15))
sketch5.addConstraint(Sketcher.Constraint("Equal", 13, 17))
sketch5.addConstraint(Sketcher.Constraint("Equal", 15, 19))
sketch5.addConstraint(Sketcher.Constraint("Equal", 17, 21))
sketch5.addConstraint(Sketcher.Constraint("Equal", 19, 23))
sketch5.addConstraint(Sketcher.Constraint("Equal", 21, 25))
sketch5.addConstraint(Sketcher.Constraint("Equal", 23, 27))
sketch5.addConstraint(Sketcher.Constraint("Equal", 25, 29))
sketch5.addConstraint(Sketcher.Constraint("Equal", 27, 31))
sketch5.addConstraint(Sketcher.Constraint("Equal", 29, 33))
sketch5.addConstraint(Sketcher.Constraint("Equal", 31, 35))
sketch5.addConstraint(Sketcher.Constraint("Equal", 33, 37))
sketch5.addConstraint(Sketcher.Constraint("Equal", 35, 39))
sketch5.addConstraint(Sketcher.Constraint("Equal", 37, 41))
sketch5.addConstraint(Sketcher.Constraint("Equal", 39, 43))
sketch5.addConstraint(Sketcher.Constraint("Equal", 41, 45))
sketch5.addConstraint(Sketcher.Constraint("Equal", 43, 47))
sketch5.addConstraint(Sketcher.Constraint("Equal", 45, 49))
sketch5.addConstraint(Sketcher.Constraint("Equal", 47, 51))
sketch5.addConstraint(Sketcher.Constraint("Equal", 51, 55))
sketch5.addConstraint(Sketcher.Constraint("Equal", 53, 57))
sketch5.addConstraint(Sketcher.Constraint("Equal", 55, 59))
sketch5.addConstraint(Sketcher.Constraint("Equal", 57, 61))
sketch5.addConstraint(Sketcher.Constraint("Equal", 59, 63))
sketch5.addConstraint(Sketcher.Constraint("Symmetric", 3, 3, 35, 3, -1, 1))
sketch5.addConstraint(Sketcher.Constraint("Symmetric", 7, 3, 39, 3, -1, 1))
sketch5.addConstraint(Sketcher.Constraint("Symmetric", 11, 3, 43, 3, -1, 1))
sketch5.addConstraint(Sketcher.Constraint("Symmetric", 15, 3, 47, 3, -1, 1))
sketch5.addConstraint(Sketcher.Constraint("Symmetric", 19, 3, 51, 3, -1, 1))
sketch5.addConstraint(Sketcher.Constraint("Symmetric", 23, 3, 55, 3, -1, 1))
sketch5.addConstraint(Sketcher.Constraint("Symmetric", 27, 3, 59, 3, -1, 1))
sketch5.addConstraint(Sketcher.Constraint("Symmetric", 31, 3, 63, 3, -1, 1))
sketch5.addConstraint(Sketcher.Constraint("Symmetric", 21, 1, 53, 1, -1, 1))
sketch5.addConstraint(Sketcher.Constraint("Symmetric", 31, 3, 39, 3, -2))
sketch5.addConstraint(Sketcher.Constraint("Symmetric", 27, 3, 43, 3, -2))
sketch5.addConstraint(Sketcher.Constraint("Symmetric", 23, 3, 47, 3, -2))
sketch5.addConstraint(Sketcher.Constraint("PointOnObject", 3, 3, -2))
sketch5.addConstraint(Sketcher.Constraint("PointOnObject", 19, 3, -1))
sketch5.addConstraint(Sketcher.Constraint("Parallel", 6, 8))
sketch5.addConstraint(Sketcher.Constraint("Parallel", 10, 12))
sketch5.addConstraint(Sketcher.Constraint("Parallel", 14, 16))
sketch5.addConstraint(Sketcher.Constraint("Perpendicular", 8, 22))
sketch5.addConstraint(Sketcher.Constraint("Parallel", 22, 24))
sketch5.addConstraint(Sketcher.Constraint("Perpendicular", 12, 26))
sketch5.addConstraint(Sketcher.Constraint("Parallel", 26, 28))
sketch5.addConstraint(Sketcher.Constraint("Perpendicular", 16, 30))
sketch5.addConstraint(Sketcher.Constraint("Parallel", 30, 32))
sketch5.addConstraint(Sketcher.Constraint("Perpendicular", 24, 38))
sketch5.addConstraint(Sketcher.Constraint("Parallel", 38, 40))
sketch5.addConstraint(Sketcher.Constraint("Perpendicular", 28, 42))
sketch5.addConstraint(Sketcher.Constraint("Parallel", 42, 44))
sketch5.addConstraint(Sketcher.Constraint("Perpendicular", 32, 46))
sketch5.addConstraint(Sketcher.Constraint("Parallel", 46, 48))
sketch5.addConstraint(Sketcher.Constraint("Parallel", 54, 56))
sketch5.addConstraint(Sketcher.Constraint("Perpendicular", 44, 58))
sketch5.addConstraint(Sketcher.Constraint("Parallel", 58, 60))
sketch5.addConstraint(Sketcher.Constraint("Perpendicular", 48, 62))
sketch5.addConstraint(Sketcher.Constraint("Parallel", 62, 64))
sketch5.addConstraint(Sketcher.Constraint("Horizontal", 32, 2, 37, 1))
sketch5.addConstraint(Sketcher.Constraint("Horizontal", 28, 2, 41, 1))
sketch5.addConstraint(Sketcher.Constraint("Equal", 52, 2))
sketch5.addConstraint(Sketcher.Constraint("Equal", 6, 8))
sketch5.addConstraint(Sketcher.Constraint("Equal", 8, 10))
sketch5.addConstraint(Sketcher.Constraint("Equal", 10, 12))
sketch5.addConstraint(Sketcher.Constraint("Equal", 12, 14))
sketch5.addConstraint(Sketcher.Constraint("Equal", 14, 16))
sketch5.addConstraint(Sketcher.Constraint("Diameter", 0, 18.0))
sketch5.addConstraint(Sketcher.Constraint("Radius", 1, 7.250001))
sketch5.addConstraint(Sketcher.Constraint("Radius", 3, 0.95))
sketch5.addConstraint(Sketcher.Constraint("Angle", 6, Q("-112.5 deg")))
sketch5.addConstraint(Sketcher.Constraint("DistanceY", -1, 1, 3, 3, 6.92))
sketch5.addConstraint(Sketcher.Constraint("Distance", 6, 0.267489))
pocket2 = doc.addObject("PartDesign::Pocket", "Pocket001")
body.addObject(pocket2)
pocket2.Profile = sketch5
pocket2.Length = 11

doc.recompute()
